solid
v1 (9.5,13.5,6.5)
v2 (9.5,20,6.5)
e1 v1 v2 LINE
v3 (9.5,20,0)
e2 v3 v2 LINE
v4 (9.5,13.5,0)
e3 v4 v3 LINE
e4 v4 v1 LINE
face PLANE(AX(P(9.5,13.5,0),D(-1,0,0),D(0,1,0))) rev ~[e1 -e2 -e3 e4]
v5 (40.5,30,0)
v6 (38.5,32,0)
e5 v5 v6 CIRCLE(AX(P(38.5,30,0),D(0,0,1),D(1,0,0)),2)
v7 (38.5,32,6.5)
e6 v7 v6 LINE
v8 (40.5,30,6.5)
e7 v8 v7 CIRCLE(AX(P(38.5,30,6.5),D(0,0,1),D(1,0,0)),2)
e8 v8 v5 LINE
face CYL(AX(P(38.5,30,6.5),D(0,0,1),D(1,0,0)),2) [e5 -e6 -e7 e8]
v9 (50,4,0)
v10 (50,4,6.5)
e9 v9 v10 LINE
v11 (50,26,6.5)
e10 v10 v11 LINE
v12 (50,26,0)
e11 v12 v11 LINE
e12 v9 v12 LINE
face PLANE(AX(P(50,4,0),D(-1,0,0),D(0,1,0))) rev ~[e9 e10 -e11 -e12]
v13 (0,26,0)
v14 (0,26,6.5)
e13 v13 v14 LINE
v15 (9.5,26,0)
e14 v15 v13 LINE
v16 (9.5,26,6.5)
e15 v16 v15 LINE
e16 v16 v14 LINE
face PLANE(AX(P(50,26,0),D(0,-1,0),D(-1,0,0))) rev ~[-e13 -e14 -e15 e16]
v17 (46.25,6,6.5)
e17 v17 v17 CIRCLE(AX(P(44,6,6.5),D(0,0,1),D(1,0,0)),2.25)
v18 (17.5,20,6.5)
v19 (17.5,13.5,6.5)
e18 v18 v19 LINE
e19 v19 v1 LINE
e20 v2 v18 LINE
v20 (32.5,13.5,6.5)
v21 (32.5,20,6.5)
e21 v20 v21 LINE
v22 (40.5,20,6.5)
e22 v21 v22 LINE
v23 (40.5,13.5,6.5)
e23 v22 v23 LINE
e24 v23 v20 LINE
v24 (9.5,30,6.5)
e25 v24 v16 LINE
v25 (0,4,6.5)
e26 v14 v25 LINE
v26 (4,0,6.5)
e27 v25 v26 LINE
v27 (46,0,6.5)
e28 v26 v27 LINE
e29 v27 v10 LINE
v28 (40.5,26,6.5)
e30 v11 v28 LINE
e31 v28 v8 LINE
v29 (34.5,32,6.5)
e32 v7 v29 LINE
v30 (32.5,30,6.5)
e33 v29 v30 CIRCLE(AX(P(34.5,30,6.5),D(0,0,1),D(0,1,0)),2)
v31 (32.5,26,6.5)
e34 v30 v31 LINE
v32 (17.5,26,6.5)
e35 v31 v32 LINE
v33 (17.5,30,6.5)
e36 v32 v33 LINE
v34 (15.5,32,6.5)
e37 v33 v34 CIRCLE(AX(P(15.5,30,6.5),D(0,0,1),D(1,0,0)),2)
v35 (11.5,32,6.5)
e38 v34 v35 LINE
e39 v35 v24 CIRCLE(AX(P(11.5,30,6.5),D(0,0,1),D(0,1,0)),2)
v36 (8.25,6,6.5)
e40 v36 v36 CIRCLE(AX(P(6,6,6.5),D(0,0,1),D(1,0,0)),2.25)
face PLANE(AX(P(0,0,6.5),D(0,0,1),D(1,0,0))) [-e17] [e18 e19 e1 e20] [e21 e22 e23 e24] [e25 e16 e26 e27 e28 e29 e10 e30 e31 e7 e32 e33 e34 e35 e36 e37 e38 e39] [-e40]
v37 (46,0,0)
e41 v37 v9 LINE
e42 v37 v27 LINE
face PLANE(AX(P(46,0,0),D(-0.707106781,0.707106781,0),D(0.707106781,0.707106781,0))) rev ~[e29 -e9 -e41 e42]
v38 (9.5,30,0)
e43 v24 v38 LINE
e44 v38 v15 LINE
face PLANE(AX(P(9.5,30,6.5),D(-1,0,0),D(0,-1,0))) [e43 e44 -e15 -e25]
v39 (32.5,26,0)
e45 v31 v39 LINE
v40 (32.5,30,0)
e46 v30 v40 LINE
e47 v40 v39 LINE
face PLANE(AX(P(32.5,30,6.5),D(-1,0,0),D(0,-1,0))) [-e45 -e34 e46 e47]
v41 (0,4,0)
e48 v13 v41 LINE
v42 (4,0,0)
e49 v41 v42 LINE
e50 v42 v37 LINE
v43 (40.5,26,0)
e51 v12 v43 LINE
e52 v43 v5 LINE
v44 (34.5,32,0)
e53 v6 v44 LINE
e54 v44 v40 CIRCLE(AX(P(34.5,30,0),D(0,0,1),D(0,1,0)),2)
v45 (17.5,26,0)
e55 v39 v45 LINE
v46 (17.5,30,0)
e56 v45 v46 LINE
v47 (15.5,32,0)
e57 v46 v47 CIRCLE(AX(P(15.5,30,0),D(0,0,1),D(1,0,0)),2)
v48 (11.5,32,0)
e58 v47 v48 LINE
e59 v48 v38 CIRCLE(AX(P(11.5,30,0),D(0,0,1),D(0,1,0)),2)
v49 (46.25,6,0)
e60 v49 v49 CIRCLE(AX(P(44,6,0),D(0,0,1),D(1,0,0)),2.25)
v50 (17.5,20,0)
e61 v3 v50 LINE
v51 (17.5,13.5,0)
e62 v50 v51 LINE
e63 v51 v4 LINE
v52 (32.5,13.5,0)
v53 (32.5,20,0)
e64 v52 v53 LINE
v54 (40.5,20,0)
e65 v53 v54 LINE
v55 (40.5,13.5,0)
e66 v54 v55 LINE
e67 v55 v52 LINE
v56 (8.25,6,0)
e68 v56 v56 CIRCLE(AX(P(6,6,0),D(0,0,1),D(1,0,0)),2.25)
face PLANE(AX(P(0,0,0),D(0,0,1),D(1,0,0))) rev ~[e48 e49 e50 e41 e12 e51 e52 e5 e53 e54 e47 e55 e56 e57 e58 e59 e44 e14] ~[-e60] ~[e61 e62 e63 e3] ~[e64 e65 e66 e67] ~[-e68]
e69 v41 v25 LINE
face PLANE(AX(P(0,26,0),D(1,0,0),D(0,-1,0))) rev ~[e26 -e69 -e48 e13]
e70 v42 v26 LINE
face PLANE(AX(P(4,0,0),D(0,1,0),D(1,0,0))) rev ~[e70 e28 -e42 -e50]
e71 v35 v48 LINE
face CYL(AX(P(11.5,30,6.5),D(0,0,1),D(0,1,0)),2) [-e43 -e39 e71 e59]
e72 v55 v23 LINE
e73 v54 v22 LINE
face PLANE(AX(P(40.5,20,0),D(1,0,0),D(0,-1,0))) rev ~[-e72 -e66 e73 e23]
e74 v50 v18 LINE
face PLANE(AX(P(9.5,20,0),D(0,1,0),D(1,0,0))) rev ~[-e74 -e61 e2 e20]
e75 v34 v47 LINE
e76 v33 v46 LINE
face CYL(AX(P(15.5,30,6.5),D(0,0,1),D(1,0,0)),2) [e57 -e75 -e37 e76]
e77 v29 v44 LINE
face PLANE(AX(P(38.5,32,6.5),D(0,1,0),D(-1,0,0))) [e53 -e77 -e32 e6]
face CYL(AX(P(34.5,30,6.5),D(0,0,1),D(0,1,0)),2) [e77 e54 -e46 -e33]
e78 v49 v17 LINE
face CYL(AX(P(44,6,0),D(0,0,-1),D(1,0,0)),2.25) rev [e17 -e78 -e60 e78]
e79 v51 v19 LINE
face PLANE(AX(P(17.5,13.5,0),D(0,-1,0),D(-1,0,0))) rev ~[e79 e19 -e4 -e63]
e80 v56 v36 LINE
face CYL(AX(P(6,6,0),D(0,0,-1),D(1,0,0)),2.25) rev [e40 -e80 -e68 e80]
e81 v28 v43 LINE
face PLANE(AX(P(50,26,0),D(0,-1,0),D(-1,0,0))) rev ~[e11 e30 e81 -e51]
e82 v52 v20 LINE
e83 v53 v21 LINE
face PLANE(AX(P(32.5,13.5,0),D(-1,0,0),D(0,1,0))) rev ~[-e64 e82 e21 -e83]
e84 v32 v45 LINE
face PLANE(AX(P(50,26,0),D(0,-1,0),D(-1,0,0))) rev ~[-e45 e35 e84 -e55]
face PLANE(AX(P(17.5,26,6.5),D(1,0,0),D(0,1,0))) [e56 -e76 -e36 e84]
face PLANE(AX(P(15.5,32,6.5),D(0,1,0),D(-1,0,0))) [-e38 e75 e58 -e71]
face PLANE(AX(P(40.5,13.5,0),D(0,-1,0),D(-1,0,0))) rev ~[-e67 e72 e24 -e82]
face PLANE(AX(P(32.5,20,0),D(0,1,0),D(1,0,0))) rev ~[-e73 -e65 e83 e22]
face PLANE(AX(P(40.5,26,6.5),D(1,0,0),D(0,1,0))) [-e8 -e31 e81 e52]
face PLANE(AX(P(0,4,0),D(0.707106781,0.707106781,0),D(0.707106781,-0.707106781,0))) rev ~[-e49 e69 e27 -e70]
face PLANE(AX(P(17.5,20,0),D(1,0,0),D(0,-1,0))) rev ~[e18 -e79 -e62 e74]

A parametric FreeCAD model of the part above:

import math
import FreeCAD as App
import Part
import Sketcher
Q = App.Units.Quantity

doc = App.newDocument("Part")
body = doc.addObject("PartDesign::Body", "Body")

sketch1 = body.newObject("Sketcher::SketchObject", "Sketch")
sketch1.AttachmentSupport = (doc.getObject("XY_Plane"), [""])
sketch1.MapMode = "FlatFace"
sketch1.addGeometry([
    Part.LineSegment(App.Vector(0, 4, 0), App.Vector(4, 0, 0)),
    Part.LineSegment(App.Vector(4, 0, 0), App.Vector(46, 0, 0)),
    Part.LineSegment(App.Vector(46, 0, 0), App.Vector(50, 4, 0)),
    Part.LineSegment(App.Vector(50, 4, 0), App.Vector(50, 26, 0)),
    Part.LineSegment(App.Vector(50, 26, 0), App.Vector(0, 26, 0)),
    Part.LineSegment(App.Vector(0, 26, 0), App.Vector(0, 4, 0)),
    Part.Circle(App.Vector(6, 6, 0), App.Vector(0, 0, 1), 2.2),
    Part.Circle(App.Vector(44, 6, 0), App.Vector(0, 0, 1), 2.2),
    Part.LineSegment(App.Vector(9.5, 13.5, 0), App.Vector(9.5, 20, 0)),
    Part.LineSegment(App.Vector(9.5, 20, 0), App.Vector(17.5, 20, 0)),
    Part.LineSegment(App.Vector(17.5, 20, 0), App.Vector(17.5, 13.5, 0)),
    Part.LineSegment(App.Vector(17.5, 13.5, 0), App.Vector(9.5, 13.5, 0)),
    Part.LineSegment(App.Vector(32.5, 13.5, 0), App.Vector(32.5, 20, 0)),
    Part.LineSegment(App.Vector(32.5, 20, 0), App.Vector(40.5, 20, 0)),
    Part.LineSegment(App.Vector(40.5, 20, 0), App.Vector(40.5, 13.5, 0)),
    Part.LineSegment(App.Vector(40.5, 13.5, 0), App.Vector(32.5, 13.5, 0)),
], False)
sketch1.addConstraint([
    Sketcher.Constraint("Coincident", 0, 2, 1, 1),
    Sketcher.Constraint("Coincident", 1, 2, 2, 1),
    Sketcher.Constraint("Coincident", 2, 2, 3, 1),
    Sketcher.Constraint("Coincident", 3, 2, 4, 1),
    Sketcher.Constraint("Coincident", 4, 2, 5, 1),
    Sketcher.Constraint("Coincident", 5, 2, 0, 1),
    Sketcher.Constraint("Coincident", 8, 2, 9, 1),
    Sketcher.Constraint("Coincident", 9, 2, 10, 1),
    Sketcher.Constraint("Coincident", 10, 2, 11, 1),
    Sketcher.Constraint("Coincident", 11, 2, 8, 1),
    Sketcher.Constraint("Coincident", 12, 2, 13, 1),
    Sketcher.Constraint("Coincident", 13, 2, 14, 1),
    Sketcher.Constraint("Coincident", 14, 2, 15, 1),
    Sketcher.Constraint("Coincident", 15, 2, 12, 1),
    Sketcher.Constraint("Horizontal", 1),
    Sketcher.Constraint("Vertical", 3),
    Sketcher.Constraint("Horizontal", 4),
    Sketcher.Constraint("Vertical", 5),
    Sketcher.Constraint("Vertical", 8),
    Sketcher.Constraint("Horizontal", 9),
    Sketcher.Constraint("Vertical", 10),
    Sketcher.Constraint("Horizontal", 11),
    Sketcher.Constraint("Vertical", 12),
    Sketcher.Constraint("Horizontal", 13),
    Sketcher.Constraint("Vertical", 14),
    Sketcher.Constraint("Horizontal", 15),
    Sketcher.Constraint("Equal", 6, 7),
    Sketcher.Constraint("PointOnObject", 0, 2, -1),
    Sketcher.Constraint("PointOnObject", 4, 2, -2),
    Sketcher.Constraint("Perpendicular", 0, 2),
    Sketcher.Constraint("Horizontal", 6, 3, 7, 3),
    Sketcher.Constraint("Horizontal", 2, 2, 5, 2),
    Sketcher.Constraint("Horizontal", 9, 2, 12, 2),
    Sketcher.Constraint("Horizontal", 11, 2, 14, 2),
    Sketcher.Constraint("Equal", 11, 13),
    Sketcher.Constraint("Equal", 0, 2),
    Sketcher.Constraint("Diameter", 6, Q("4.5 mm")),
    Sketcher.Constraint("DistanceX", 4, 2, 4, 1, Q("50 mm")),
    Sketcher.Constraint("DistanceX", 9, 1, 9, 2, Q("8 mm")),
    Sketcher.Constraint("DistanceY", 8, 1, 8, 2, Q("6.5 mm")),
    Sketcher.Constraint("DistanceX", -1, 1, 6, 3, Q("6 mm")),
    Sketcher.Constraint("DistanceY", -1, 1, 6, 3, Q("6 mm")),
    Sketcher.Constraint("DistanceX", -1, 1, 0, 2, Q("4 mm")),
    Sketcher.Constraint("DistanceY", -1, 1, 3, 2, Q("26 mm")),
    Sketcher.Constraint("DistanceY", -1, 1, 8, 2, Q("20 mm")),
    Sketcher.Constraint("DistanceX", 7, 3, 2, 2, Q("6 mm")),
    Sketcher.Constraint("DistanceX", 9, 2, 12, 2, Q("15 mm")),
    Sketcher.Constraint("DistanceX", -1, 1, 8, 2, Q("9.5 mm")),
])
pad1 = body.newObject("PartDesign::Pad", "Pad")
pad1.Profile = sketch1
pad1.Length = 6.5

sketch2 = body.newObject("Sketcher::SketchObject", "Sketch001")
sketch2.AttachmentSupport = (doc.getObject("XY_Plane"), [""])
sketch2.MapMode = "FlatFace"
sketch2.AttachmentOffset = App.Placement(App.Vector(0, 0, 6.5), App.Rotation())
sketch2.addGeometry([
    Part.LineSegment(App.Vector(9.5, 26, 0), App.Vector(17.5, 26, 0)),
    Part.LineSegment(App.Vector(17.5, 26, 0), App.Vector(17.5, 30, 0)),
    Part.ArcOfCircle(Part.Circle(App.Vector(15.5, 30, 0), App.Vector(0, 0, 1), 2), math.radians(0), math.radians(90)),
    Part.LineSegment(App.Vector(15.5, 32, 0), App.Vector(11.5, 32, 0)),
    Part.ArcOfCircle(Part.Circle(App.Vector(11.5, 30, 0), App.Vector(0, 0, 1), 2), math.radians(90), math.radians(180)),
    Part.LineSegment(App.Vector(9.5, 30, 0), App.Vector(9.5, 26, 0)),
    Part.LineSegment(App.Vector(32.5, 26, 0), App.Vector(40.5, 26, 0)),
    Part.LineSegment(App.Vector(40.5, 26, 0), App.Vector(40.5, 30, 0)),
    Part.ArcOfCircle(Part.Circle(App.Vector(38.5, 30, 0), App.Vector(0, 0, 1), 2), math.radians(0), math.radians(90)),
    Part.LineSegment(App.Vector(38.5, 32, 0), App.Vector(34.5, 32, 0)),
    Part.ArcOfCircle(Part.Circle(App.Vector(34.5, 30, 0), App.Vector(0, 0, 1), 2), math.radians(90), math.radians(180)),
    Part.LineSegment(App.Vector(32.5, 30, 0), App.Vector(32.5, 26, 0)),
], False)
sketch2.addConstraint([
    Sketcher.Constraint("Coincident", 0, 2, 1, 1),
    Sketcher.Constraint("Tangent", 1, 2, 2, 1),
    Sketcher.Constraint("Tangent", 2, 2, 3, 1),
    Sketcher.Constraint("Tangent", 3, 2, 4, 1),
    Sketcher.Constraint("Tangent", 4, 2, 5, 1),
    Sketcher.Constraint("Coincident", 5, 2, 0, 1),
    Sketcher.Constraint("Coincident", 6, 2, 7, 1),
    Sketcher.Constraint("Tangent", 7, 2, 8, 1),
    Sketcher.Constraint("Tangent", 8, 2, 9, 1),
    Sketcher.Constraint("Tangent", 9, 2, 10, 1),
    Sketcher.Constraint("Tangent", 10, 2, 11, 1),
    Sketcher.Constraint("Coincident", 11, 2, 6, 1),
    Sketcher.Constraint("Horizontal", 0),
    Sketcher.Constraint("Vertical", 1),
    Sketcher.Constraint("Horizontal", 3),
    Sketcher.Constraint("Vertical", 5),
    Sketcher.Constraint("Horizontal", 6),
    Sketcher.Constraint("Vertical", 7),
    Sketcher.Constraint("Horizontal", 9),
    Sketcher.Constraint("Vertical", 11),
    Sketcher.Constraint("Equal", 2, 4),
    Sketcher.Constraint("Equal", 4, 8),
    Sketcher.Constraint("Equal", 8, 10),
    Sketcher.Constraint("Horizontal", 4, 3, 8, 3),
    Sketcher.Constraint("Horizontal", 5, 2, 6, 2),
    Sketcher.Constraint("Equal", 0, 6),
    Sketcher.Constraint("Equal", 9, 1),
    Sketcher.Constraint("Radius", 2, Q("2 mm")),
    Sketcher.Constraint("DistanceX", 0, 1, 0, 2, Q("8 mm")),
    Sketcher.Constraint("DistanceY", -1, 1, 2, 3, Q("30 mm")),
    Sketcher.Constraint("DistanceX", 2, 3, 8, 3, Q("23 mm")),
    Sketcher.Constraint("DistanceX", -1, 1, 2, 3, Q("15.5 mm")),
])
pad2 = body.newObject("PartDesign::Pad", "Pad001")
pad2.Profile = sketch2
pad2.Length = 6.5
pad2.Reversed = True

doc.recompute()
